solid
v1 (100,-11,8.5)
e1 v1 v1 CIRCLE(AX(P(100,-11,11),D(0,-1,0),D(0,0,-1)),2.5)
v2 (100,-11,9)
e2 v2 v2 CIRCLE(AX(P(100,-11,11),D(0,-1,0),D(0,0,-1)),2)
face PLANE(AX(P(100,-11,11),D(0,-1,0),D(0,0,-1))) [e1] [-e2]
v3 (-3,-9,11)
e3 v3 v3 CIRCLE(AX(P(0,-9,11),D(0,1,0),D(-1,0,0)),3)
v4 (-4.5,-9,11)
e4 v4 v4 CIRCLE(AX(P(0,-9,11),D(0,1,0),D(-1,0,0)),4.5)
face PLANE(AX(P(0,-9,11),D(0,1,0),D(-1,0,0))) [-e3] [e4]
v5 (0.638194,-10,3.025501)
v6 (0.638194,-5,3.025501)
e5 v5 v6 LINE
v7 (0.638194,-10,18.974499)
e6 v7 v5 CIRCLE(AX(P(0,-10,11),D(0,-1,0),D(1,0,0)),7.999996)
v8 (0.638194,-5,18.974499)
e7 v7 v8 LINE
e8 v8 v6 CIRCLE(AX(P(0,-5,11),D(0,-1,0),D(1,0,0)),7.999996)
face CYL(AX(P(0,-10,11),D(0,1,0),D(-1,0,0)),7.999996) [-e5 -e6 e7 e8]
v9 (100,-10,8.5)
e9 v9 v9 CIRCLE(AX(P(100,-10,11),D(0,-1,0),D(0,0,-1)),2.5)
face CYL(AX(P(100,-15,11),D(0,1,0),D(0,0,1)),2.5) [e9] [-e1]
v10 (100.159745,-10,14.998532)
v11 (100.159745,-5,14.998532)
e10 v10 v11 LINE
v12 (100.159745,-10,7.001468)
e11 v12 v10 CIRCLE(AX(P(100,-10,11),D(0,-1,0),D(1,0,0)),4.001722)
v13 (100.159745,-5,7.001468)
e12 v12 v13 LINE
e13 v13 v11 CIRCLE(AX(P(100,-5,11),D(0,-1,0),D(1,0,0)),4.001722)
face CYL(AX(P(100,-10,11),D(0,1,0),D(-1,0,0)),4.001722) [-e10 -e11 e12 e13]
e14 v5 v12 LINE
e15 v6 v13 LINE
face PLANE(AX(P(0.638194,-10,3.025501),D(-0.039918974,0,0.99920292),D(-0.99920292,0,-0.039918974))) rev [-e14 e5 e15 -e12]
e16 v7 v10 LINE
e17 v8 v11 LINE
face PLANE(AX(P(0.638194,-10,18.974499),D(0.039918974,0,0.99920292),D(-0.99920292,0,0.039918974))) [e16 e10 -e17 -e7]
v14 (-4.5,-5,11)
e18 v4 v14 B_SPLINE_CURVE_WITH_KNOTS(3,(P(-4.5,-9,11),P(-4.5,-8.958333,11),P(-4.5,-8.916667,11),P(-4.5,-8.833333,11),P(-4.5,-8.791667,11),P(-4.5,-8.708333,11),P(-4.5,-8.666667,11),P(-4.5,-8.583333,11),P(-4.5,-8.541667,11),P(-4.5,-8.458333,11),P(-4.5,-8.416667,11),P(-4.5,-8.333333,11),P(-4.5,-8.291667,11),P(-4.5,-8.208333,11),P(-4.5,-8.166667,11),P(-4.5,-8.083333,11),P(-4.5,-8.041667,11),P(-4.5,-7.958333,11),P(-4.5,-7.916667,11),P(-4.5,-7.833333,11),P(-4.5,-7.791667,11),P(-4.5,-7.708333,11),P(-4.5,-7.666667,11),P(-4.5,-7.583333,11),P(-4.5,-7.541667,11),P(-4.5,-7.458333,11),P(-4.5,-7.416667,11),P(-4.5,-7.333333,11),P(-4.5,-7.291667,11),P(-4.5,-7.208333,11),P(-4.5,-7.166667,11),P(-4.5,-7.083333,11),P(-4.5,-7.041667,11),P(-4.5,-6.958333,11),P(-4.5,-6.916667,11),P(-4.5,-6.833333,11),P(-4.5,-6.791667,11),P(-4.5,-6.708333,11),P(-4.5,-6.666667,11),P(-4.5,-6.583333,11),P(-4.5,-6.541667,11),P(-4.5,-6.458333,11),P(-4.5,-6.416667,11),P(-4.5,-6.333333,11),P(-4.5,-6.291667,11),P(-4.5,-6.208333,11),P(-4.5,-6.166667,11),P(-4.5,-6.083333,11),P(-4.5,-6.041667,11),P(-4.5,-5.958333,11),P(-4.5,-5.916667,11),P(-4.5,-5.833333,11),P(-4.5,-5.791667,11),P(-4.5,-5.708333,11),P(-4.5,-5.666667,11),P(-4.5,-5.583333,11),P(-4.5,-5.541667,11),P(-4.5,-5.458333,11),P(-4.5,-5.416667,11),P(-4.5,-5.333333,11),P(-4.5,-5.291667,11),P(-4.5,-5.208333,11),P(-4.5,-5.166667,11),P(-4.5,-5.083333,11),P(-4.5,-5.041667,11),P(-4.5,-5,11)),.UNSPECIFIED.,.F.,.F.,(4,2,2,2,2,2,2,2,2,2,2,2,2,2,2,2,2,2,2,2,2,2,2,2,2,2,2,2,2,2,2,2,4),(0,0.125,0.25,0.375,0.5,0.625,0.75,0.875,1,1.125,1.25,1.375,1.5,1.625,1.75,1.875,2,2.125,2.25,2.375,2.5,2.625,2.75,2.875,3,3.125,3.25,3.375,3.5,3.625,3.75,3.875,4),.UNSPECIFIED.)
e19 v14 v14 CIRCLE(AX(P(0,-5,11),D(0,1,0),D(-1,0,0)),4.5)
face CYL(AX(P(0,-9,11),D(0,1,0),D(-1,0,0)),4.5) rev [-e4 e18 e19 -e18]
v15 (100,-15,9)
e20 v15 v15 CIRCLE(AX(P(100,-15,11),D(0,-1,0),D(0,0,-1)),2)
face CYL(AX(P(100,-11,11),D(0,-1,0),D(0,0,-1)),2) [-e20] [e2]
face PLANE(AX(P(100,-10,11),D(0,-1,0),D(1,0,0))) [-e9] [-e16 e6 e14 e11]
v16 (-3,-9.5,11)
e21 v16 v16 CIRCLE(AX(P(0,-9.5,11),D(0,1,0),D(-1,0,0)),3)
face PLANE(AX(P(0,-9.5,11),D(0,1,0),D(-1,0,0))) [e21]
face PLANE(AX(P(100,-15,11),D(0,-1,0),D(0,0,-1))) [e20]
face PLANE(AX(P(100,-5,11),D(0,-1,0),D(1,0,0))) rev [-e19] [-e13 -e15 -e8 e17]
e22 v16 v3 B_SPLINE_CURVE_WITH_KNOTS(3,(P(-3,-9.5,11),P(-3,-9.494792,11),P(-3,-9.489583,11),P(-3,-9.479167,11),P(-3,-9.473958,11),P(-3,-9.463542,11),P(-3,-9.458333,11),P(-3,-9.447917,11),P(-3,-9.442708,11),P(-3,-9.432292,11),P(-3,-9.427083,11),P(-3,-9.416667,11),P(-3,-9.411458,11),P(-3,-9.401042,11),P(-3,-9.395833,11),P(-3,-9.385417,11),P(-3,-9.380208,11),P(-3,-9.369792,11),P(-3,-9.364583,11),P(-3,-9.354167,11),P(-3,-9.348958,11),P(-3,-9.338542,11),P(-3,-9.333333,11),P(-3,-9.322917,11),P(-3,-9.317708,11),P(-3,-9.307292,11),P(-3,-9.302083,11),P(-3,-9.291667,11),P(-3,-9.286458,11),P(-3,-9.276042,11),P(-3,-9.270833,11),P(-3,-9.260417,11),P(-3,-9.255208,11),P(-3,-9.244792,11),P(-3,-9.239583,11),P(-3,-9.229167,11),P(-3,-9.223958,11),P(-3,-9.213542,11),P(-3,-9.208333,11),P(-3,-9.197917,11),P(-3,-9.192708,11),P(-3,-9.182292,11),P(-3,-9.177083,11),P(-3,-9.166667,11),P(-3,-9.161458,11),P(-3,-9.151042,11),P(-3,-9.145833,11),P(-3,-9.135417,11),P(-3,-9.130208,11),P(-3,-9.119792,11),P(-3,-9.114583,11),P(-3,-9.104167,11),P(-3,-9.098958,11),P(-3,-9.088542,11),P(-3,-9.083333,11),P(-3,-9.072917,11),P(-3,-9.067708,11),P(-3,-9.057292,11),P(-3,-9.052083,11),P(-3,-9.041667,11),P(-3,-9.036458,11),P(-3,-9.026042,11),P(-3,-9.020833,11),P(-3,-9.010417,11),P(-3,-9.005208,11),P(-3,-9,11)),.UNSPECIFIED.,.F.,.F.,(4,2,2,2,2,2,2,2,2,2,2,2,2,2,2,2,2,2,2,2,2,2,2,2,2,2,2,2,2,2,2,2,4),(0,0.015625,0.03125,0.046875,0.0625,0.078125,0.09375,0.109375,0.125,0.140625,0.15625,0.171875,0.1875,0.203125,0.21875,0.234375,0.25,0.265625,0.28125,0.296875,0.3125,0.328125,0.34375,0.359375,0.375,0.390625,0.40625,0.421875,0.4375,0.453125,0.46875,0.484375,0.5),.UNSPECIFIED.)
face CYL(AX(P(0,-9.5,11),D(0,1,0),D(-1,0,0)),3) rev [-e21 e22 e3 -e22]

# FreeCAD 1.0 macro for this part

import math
import FreeCAD as App
import Part
import Sketcher
Q = App.Units.Quantity

doc = App.newDocument("Part")
body = doc.addObject("PartDesign::Body", "Body")

# Sketch on XY plane
sketch1 = doc.addObject("Sketcher::SketchObject", "Sketch")
body.addObject(sketch1)
sketch1.AttachmentSupport = (doc.XY_Plane, [""])
sketch1.MapMode = "FlatFace"
sketch1.addGeometry([
    Part.LineSegment(App.Vector(100.159745, 3.998532, 0), App.Vector(0.638194, 7.974499, 0)),
    Part.ArcOfCircle(Part.Circle(App.Vector(0, 0, 0), App.Vector(0, 0, 1), 7.999996), math.radians(85.424407), math.radians(274.575593)),
    Part.LineSegment(App.Vector(0.638194, -7.974499, 0), App.Vector(100.159745, -3.998532, 0)),
    Part.ArcOfCircle(Part.Circle(App.Vector(100, 0, 0), App.Vector(0, 0, 1), 4.001722), math.radians(-87.712203), math.radians(87.712203)),
], False)
sketch1.addConstraint([
    Sketcher.Constraint("Coincident", 0, 2, 1, 1),
    Sketcher.Constraint("Coincident", 1, 2, 2, 1),
    Sketcher.Constraint("Tangent", 2, 2, 3, 1),
    Sketcher.Constraint("Tangent", 3, 2, 0, 1),
    Sketcher.Constraint("Coincident", 1, 3, -1, 1),
    Sketcher.Constraint("Symmetric", 2, 2, 3, 2, -1),
    Sketcher.Constraint("DistanceX", -1, 1, 3, 3, Q("100 mm")),
    Sketcher.Constraint("Radius", 3, Q("4.001722 mm")),
    Sketcher.Constraint("Radius", 1, Q("7.999996 mm")),
    Sketcher.Constraint("DistanceY", 1, 2, 0, 2, Q("15.948999 mm")),
])
pad1 = doc.addObject("PartDesign::Pad", "Pad")
body.addObject(pad1)
pad1.Profile = sketch1
pad1.Length = 5

# Sketch on XY plane
sketch2 = doc.addObject("Sketcher::SketchObject", "Sketch001")
body.addObject(sketch2)
sketch2.AttachmentSupport = (doc.XY_Plane, [""])
sketch2.MapMode = "FlatFace"
sketch2.addGeometry(Part.Circle(App.Vector(0, 0, 0), App.Vector(0, 0, 1), 4.5), False)
sketch2.addConstraint([
    Sketcher.Constraint("Coincident", 0, 3, -1, 1),
    Sketcher.Constraint("Diameter", 0, Q("9 mm")),
])
pocket1 = doc.addObject("PartDesign::Pocket", "Pocket")
body.addObject(pocket1)
pocket1.Profile = sketch2
pocket1.Length = 4
pocket1.Reversed = True

# Sketch on XY plane
sketch3 = doc.addObject("Sketcher::SketchObject", "Sketch002")
body.addObject(sketch3)
sketch3.AttachmentSupport = (doc.XY_Plane, [""])
sketch3.MapMode = "FlatFace"
sketch3.AttachmentOffset = App.Placement(App.Vector(0, 0, 4), App.Rotation())
sketch3.addGeometry(Part.Circle(App.Vector(0, 0, 0), App.Vector(0, 0, 1), 3), False)
sketch3.addConstraint([
    Sketcher.Constraint("Coincident", 0, 3, -1, 1),
    Sketcher.Constraint("Diameter", 0, Q("6 mm")),
])
pocket2 = doc.addObject("PartDesign::Pocket", "Pocket001")
body.addObject(pocket2)
pocket2.Profile = sketch3
pocket2.Length = 0.5
pocket2.Reversed = True
body2 = doc.addObject("PartDesign::Body", "Body001")
doc.recompute()

body.Placement = App.Placement(App.Vector(0, -11, 11), App.Rotation(App.Vector(-1, 0, 0), 90))
boolean = doc.addObject("PartDesign::Boolean", "Boolean")
body2.addObject(boolean)
boolean.Type = "Fuse"
boolean.addObjects([body])
body3 = doc.addObject("PartDesign::Body", "Body002")
doc.recompute()

body2.Placement = App.Placement(App.Vector(0, -16, 22), App.Rotation(App.Vector(1, 0, 0), 180))
boolean2 = doc.addObject("PartDesign::Boolean", "Boolean001")
body3.addObject(boolean2)
boolean2.Type = "Fuse"
boolean2.addObjects([body2])

# Sketch on XZ plane
sketch4 = doc.addObject("Sketcher::SketchObject", "Sketch003")
body3.addObject(sketch4)
sketch4.AttachmentSupport = (doc.getObject("XZ_Plane002"), [""])
sketch4.MapMode = "FlatFace"
sketch4.AttachmentOffset = App.Placement(App.Vector(0, 0, 10), App.Rotation())
sketch4.addGeometry(Part.Circle(App.Vector(100, 11, 0), App.Vector(0, 0, 1), 2.5), False)
sketch4.addConstraint([
    Sketcher.Constraint("Diameter", 0, Q("5 mm")),
    Sketcher.Constraint("DistanceX", -1, 1, 0, 3, Q("100 mm")),
    Sketcher.Constraint("DistanceY", -1, 1, 0, 3, Q("11 mm")),
])
pad2 = doc.addObject("PartDesign::Pad", "Pad001")
body3.addObject(pad2)
pad2.Profile = sketch4
pad2.Length = 5

# Sketch on XZ plane
sketch5 = doc.addObject("Sketcher::SketchObject", "Sketch004")
body3.addObject(sketch5)
sketch5.AttachmentSupport = (doc.getObject("XZ_Plane002"), [""])
sketch5.MapMode = "FlatFace"
sketch5.AttachmentOffset = App.Placement(App.Vector(0, 0, 11), App.Rotation())
sketch5.addGeometry([
    Part.Circle(App.Vector(100, 11, 0), App.Vector(0, 0, 1), 2.5),
    Part.Circle(App.Vector(100, 11, 0), App.Vector(0, 0, 1), 2),
], False)
sketch5.addConstraint([
    Sketcher.Constraint("Coincident", 1, 3, 0, 3),
    Sketcher.Constraint("Diameter", 0, Q("5 mm")),
    Sketcher.Constraint("Diameter", 1, Q("4 mm")),
    Sketcher.Constraint("DistanceX", -1, 1, 0, 3, Q("100 mm")),
    Sketcher.Constraint("DistanceY", -1, 1, 0, 3, Q("11 mm")),
])
pocket3 = doc.addObject("PartDesign::Pocket", "Pocket002")
body3.addObject(pocket3)
pocket3.Profile = sketch5
pocket3.Length = 4
pocket3.Reversed = True

doc.recompute()
